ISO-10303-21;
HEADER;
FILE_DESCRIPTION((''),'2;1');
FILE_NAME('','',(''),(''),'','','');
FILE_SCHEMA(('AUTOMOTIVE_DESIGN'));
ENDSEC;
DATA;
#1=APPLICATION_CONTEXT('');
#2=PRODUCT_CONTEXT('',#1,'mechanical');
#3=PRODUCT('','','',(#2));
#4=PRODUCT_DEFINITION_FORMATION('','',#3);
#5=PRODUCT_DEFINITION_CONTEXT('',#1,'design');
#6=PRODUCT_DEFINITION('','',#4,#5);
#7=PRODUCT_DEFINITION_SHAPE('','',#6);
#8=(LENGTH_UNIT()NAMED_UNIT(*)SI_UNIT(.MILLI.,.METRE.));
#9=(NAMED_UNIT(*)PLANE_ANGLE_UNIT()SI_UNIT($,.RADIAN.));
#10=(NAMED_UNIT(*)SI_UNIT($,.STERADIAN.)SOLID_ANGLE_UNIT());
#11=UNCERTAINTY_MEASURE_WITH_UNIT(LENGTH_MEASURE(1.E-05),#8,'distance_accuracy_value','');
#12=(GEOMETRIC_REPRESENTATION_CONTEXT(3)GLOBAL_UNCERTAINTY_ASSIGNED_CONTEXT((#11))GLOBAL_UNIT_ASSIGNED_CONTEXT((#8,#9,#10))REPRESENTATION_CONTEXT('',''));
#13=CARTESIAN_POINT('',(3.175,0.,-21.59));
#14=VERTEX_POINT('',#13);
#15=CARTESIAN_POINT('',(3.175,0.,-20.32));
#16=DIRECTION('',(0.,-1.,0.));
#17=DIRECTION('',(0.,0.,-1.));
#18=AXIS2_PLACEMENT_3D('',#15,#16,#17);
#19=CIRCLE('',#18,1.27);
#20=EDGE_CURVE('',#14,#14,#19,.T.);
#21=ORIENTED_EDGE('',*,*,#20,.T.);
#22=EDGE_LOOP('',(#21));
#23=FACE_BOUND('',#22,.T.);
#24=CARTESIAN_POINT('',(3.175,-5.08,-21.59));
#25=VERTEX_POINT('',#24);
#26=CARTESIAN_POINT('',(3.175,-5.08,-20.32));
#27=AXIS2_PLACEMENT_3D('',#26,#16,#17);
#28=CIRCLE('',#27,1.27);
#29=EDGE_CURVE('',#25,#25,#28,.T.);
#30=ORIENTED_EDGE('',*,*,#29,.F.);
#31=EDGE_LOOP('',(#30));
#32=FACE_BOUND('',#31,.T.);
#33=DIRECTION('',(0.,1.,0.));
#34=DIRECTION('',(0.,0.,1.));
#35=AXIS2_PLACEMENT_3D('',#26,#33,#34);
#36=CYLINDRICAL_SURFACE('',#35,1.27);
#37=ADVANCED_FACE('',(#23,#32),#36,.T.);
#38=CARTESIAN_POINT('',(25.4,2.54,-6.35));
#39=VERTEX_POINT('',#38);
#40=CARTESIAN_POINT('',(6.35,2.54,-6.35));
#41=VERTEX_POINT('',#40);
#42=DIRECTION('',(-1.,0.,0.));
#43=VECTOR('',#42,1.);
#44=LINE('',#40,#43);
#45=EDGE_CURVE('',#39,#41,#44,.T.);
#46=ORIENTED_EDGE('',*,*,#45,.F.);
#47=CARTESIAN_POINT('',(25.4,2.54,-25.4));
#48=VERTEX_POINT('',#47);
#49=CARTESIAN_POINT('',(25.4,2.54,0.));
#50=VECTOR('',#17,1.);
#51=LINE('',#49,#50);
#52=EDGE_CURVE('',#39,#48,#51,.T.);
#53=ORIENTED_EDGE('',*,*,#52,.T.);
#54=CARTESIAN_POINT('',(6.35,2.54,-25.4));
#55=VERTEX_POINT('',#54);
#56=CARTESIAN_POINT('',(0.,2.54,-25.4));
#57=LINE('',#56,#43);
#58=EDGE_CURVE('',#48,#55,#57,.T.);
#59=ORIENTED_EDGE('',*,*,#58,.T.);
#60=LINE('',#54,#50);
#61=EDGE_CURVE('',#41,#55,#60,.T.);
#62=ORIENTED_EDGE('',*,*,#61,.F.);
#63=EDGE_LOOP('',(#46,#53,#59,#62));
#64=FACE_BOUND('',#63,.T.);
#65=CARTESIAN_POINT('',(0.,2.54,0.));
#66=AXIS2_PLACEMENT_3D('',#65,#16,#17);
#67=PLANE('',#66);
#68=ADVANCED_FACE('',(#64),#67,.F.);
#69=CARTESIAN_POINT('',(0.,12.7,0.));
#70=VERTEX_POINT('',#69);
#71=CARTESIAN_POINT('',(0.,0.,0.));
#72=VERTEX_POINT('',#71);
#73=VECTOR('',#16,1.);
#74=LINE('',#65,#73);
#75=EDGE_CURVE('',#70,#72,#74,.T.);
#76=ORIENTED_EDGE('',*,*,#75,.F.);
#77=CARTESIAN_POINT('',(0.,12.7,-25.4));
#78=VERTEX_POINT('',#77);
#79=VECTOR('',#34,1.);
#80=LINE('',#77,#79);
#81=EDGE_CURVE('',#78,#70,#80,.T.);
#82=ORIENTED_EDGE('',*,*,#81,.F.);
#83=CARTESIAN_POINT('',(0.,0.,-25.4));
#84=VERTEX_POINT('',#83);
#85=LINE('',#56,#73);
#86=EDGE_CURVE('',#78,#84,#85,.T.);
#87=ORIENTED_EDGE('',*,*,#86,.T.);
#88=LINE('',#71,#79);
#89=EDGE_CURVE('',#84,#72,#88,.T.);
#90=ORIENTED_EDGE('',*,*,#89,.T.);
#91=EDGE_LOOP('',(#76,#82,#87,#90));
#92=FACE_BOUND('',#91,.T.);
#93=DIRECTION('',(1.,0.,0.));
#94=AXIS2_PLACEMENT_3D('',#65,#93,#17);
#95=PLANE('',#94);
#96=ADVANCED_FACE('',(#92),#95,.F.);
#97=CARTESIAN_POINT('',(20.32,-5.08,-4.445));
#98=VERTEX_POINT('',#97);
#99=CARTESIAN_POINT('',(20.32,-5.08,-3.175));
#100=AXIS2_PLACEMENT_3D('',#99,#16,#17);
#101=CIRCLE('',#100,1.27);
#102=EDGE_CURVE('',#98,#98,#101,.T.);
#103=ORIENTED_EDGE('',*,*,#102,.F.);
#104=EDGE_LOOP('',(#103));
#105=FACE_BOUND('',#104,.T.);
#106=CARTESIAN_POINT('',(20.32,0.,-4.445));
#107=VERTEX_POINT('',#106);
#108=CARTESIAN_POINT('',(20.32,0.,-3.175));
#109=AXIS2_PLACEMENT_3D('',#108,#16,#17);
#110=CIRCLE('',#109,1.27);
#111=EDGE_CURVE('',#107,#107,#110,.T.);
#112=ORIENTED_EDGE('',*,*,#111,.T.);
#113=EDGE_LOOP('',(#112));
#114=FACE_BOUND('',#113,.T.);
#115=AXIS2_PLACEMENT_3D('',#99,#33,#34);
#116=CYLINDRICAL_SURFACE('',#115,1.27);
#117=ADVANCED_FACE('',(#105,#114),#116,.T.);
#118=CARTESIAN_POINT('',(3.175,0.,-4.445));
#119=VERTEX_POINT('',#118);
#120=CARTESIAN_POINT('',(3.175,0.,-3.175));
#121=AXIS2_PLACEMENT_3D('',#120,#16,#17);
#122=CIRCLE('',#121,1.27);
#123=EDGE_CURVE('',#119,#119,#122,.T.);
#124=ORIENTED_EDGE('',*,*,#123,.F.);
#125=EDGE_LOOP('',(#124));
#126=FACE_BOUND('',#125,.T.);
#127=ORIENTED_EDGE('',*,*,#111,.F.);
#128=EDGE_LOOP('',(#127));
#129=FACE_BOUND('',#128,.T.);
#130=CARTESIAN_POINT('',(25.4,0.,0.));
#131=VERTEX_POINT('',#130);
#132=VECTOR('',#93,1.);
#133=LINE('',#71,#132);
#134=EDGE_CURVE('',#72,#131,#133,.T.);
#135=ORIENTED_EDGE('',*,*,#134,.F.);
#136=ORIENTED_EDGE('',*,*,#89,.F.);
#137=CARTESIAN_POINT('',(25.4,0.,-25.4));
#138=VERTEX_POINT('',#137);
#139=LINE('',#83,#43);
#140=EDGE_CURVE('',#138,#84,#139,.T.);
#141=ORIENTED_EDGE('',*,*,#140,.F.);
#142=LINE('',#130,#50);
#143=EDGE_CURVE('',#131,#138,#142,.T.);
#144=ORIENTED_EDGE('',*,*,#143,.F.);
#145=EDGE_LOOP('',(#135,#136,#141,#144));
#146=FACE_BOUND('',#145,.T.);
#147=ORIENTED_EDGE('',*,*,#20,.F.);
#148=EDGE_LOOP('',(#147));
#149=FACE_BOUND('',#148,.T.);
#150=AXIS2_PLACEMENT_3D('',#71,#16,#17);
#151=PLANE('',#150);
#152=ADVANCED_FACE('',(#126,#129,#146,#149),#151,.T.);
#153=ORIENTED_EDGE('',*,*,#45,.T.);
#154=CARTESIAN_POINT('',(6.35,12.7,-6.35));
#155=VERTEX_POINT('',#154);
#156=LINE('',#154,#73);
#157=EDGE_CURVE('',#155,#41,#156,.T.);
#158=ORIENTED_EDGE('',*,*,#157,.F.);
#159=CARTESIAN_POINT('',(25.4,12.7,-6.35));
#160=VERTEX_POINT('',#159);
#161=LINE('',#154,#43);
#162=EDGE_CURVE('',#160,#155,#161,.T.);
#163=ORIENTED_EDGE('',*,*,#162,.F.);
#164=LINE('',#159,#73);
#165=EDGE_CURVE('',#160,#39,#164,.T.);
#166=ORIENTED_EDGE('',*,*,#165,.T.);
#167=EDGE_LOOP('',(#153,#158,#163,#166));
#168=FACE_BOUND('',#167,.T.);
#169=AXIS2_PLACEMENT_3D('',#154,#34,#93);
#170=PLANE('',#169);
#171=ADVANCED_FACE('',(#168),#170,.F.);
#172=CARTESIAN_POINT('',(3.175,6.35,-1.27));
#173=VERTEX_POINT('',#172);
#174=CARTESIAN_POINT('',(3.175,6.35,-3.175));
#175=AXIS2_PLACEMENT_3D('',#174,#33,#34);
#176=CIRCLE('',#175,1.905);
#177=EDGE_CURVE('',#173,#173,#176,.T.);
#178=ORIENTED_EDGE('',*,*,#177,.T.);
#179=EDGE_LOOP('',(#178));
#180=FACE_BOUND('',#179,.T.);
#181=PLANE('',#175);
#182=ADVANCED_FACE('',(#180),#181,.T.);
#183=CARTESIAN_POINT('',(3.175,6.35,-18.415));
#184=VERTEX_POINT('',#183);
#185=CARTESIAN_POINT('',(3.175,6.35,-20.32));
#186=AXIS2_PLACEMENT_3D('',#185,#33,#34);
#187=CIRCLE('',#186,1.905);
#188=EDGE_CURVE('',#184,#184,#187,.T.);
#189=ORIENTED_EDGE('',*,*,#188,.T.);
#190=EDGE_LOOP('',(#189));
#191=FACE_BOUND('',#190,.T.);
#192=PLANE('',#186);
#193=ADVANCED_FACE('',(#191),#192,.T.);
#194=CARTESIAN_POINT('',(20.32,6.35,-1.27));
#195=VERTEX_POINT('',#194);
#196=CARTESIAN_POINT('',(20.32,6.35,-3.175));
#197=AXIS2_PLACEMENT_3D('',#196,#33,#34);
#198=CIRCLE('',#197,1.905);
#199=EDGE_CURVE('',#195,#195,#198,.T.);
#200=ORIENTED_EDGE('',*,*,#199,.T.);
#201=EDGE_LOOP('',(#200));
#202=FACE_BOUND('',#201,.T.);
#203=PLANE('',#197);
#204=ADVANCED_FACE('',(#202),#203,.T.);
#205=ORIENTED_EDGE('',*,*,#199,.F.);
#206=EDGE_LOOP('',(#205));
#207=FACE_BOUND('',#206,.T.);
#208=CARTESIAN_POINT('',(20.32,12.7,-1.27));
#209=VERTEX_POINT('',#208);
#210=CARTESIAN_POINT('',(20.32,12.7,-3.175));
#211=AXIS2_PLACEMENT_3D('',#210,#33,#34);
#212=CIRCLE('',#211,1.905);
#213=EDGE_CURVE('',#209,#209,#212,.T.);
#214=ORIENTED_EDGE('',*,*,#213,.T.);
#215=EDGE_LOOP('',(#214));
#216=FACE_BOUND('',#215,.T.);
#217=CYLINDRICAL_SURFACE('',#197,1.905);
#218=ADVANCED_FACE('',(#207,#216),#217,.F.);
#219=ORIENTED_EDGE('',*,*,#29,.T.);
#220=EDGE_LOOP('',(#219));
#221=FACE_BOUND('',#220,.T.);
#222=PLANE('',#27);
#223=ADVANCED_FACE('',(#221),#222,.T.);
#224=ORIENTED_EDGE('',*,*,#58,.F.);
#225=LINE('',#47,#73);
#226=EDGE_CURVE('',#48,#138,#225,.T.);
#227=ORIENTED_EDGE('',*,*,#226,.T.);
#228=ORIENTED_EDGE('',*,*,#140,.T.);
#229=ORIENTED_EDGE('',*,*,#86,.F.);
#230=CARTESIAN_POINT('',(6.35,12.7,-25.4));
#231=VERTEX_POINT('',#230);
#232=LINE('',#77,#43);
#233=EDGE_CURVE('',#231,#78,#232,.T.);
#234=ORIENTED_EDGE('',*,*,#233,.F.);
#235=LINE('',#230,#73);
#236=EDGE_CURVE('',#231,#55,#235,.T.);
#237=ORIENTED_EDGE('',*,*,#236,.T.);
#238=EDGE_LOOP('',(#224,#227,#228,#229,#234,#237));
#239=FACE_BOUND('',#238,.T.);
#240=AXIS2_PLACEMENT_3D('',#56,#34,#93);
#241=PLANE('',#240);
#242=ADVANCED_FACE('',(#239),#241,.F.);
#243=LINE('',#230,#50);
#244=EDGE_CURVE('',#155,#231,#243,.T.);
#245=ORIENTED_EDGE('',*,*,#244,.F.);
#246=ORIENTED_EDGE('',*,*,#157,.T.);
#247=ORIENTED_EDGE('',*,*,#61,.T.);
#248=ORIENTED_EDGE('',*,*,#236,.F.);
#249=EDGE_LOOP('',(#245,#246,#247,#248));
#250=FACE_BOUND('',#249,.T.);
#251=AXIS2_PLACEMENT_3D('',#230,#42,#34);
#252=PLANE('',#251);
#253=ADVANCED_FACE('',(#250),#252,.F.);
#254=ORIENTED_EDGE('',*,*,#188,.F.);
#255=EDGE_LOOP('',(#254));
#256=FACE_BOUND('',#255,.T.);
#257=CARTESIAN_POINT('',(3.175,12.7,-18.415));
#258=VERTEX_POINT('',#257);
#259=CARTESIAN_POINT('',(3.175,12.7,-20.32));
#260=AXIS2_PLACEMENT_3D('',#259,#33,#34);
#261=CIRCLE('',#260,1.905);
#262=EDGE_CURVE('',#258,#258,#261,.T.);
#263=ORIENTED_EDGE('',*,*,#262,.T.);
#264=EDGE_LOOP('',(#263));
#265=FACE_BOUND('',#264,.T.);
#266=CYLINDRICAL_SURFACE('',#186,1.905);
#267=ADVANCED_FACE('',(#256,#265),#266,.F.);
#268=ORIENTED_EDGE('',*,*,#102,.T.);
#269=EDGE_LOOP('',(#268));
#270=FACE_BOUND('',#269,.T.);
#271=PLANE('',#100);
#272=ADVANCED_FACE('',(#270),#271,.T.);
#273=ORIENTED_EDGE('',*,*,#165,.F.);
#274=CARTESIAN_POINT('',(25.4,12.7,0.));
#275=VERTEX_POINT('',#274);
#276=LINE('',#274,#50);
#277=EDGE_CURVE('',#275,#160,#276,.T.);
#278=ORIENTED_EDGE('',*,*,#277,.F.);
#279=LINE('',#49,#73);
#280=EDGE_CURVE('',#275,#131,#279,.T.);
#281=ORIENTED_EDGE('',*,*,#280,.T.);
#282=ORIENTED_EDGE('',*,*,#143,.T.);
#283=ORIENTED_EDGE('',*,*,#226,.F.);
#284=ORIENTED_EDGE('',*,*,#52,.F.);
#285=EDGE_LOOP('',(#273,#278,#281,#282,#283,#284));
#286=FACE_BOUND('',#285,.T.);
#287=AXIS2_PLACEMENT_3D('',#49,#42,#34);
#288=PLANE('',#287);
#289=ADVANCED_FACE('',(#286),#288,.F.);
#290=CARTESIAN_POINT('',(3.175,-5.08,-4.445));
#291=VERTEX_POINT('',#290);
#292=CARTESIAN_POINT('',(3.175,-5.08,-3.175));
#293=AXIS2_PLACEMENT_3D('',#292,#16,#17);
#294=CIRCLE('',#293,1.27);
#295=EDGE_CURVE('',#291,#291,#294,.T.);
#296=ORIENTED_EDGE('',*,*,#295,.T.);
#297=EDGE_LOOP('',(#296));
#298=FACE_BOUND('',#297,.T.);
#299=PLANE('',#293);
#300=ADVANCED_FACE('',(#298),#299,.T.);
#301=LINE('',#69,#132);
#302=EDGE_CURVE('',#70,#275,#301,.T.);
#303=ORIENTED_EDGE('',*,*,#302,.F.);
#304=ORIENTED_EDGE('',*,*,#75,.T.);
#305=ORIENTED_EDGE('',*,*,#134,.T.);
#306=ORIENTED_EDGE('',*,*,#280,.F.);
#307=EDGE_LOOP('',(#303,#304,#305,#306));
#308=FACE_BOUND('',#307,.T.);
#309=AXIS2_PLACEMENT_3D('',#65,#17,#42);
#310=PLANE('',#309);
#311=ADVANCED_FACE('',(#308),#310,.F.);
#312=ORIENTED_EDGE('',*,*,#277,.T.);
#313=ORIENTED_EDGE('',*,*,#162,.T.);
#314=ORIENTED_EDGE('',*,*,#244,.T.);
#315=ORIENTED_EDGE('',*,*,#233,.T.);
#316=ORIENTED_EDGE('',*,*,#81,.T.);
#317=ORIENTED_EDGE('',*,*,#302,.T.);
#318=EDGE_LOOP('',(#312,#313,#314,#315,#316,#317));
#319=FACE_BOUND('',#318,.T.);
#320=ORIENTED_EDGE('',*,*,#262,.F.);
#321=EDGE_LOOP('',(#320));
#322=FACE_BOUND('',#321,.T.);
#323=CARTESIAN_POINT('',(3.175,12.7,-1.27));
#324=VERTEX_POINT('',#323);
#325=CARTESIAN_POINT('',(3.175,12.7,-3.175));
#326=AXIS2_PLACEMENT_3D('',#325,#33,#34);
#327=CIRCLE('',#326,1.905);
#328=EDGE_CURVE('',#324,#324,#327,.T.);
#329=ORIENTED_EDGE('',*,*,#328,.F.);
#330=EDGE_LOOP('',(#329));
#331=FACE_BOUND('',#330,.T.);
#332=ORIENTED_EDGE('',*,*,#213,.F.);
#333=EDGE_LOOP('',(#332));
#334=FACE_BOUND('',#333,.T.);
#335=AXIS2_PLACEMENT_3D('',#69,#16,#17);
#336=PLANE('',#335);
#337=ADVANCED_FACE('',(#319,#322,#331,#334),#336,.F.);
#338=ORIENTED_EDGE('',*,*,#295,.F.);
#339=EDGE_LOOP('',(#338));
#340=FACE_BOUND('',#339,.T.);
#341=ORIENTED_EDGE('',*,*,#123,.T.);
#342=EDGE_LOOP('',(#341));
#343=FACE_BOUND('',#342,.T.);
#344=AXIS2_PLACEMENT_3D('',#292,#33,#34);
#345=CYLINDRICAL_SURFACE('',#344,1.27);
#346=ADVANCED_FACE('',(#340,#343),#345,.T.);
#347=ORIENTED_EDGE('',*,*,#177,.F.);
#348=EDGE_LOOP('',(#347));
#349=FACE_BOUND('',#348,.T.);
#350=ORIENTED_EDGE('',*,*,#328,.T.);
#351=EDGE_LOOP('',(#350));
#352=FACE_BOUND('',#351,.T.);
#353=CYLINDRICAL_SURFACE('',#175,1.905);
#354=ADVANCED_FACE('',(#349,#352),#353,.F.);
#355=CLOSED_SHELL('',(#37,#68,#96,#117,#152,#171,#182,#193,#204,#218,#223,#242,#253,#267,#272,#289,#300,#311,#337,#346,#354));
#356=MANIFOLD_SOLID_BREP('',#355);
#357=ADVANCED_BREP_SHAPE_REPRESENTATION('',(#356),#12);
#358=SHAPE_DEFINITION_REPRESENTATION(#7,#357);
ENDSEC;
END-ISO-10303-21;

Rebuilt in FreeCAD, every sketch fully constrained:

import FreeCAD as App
import Part
import Sketcher

V = App.Vector
Q = App.Units.Quantity


def add_polygon(sketch, points):
    """Adds a closed chain of lines whose ends are joined by coincident constraints."""
    first, n = sketch.GeometryCount, len(points)
    for a, b in zip(points, points[1:] + points[:1]):
        sketch.addGeometry(Part.LineSegment(App.Vector(*a, 0), App.Vector(*b, 0)), False)
    for i in range(n):
        sketch.addConstraint(Sketcher.Constraint("Coincident", first + i, 2, first + (i + 1) % n, 1))

doc = App.newDocument("Part")
body = doc.addObject("PartDesign::Body", "Body")

sketch1 = body.newObject("Sketcher::SketchObject", "Sketch")
sketch1.AttachmentSupport = (doc.getObject("XZ_Plane"), [""])
sketch1.MapMode = "FlatFace"
add_polygon(sketch1, [(0, -25.4), (0, 0), (25.4, 0), (25.4, -25.4)])
sketch1.addConstraint([
    Sketcher.Constraint("Vertical", 0),
    Sketcher.Constraint("Horizontal", 1),
    Sketcher.Constraint("Vertical", 2),
    Sketcher.Constraint("Horizontal", 3),
    Sketcher.Constraint("Coincident", 0, 2, -1, 1),
    Sketcher.Constraint("Equal", 3, 0),
    Sketcher.Constraint("DistanceX", 1, 1, 1, 2, Q("1 in")),
])
pad1 = body.newObject("PartDesign::Pad", "Pad")
pad1.Profile = sketch1
pad1.Length = Q("0.1 in")
pad1.Reversed = True

sketch2 = body.newObject("Sketcher::SketchObject", "Sketch001")
sketch2.AttachmentSupport = (doc.getObject("XZ_Plane"), [""])
sketch2.MapMode = "FlatFace"
sketch2.AttachmentOffset = App.Placement(V(0, 0, -0.1 * 25.4), App.Rotation())
add_polygon(sketch2, [(0, -25.4), (0, 0), (25.4, 0), (25.4, -6.35), (6.35, -6.35), (6.35, -25.4)])
sketch2.addConstraint([
    Sketcher.Constraint("Vertical", 0),
    Sketcher.Constraint("Horizontal", 1),
    Sketcher.Constraint("Vertical", 2),
    Sketcher.Constraint("Horizontal", 3),
    Sketcher.Constraint("Vertical", 4),
    Sketcher.Constraint("Horizontal", 5),
    Sketcher.Constraint("Coincident", 0, 2, -1, 1),
    Sketcher.Constraint("Equal", 1, 0),
    Sketcher.Constraint("Equal", 5, 2),
    Sketcher.Constraint("DistanceX", 1, 1, 1, 2, Q("1 in")),
    Sketcher.Constraint("DistanceX", 3, 2, 3, 1, Q("0.75 in")),
])
pad2 = body.newObject("PartDesign::Pad", "Pad001")
pad2.Profile = sketch2
pad2.Length = Q("0.4 in")
pad2.Reversed = True

sketch3 = body.newObject("Sketcher::SketchObject", "Sketch002")
sketch3.AttachmentSupport = (doc.getObject("XZ_Plane"), [""])
sketch3.MapMode = "FlatFace"
sketch3.AttachmentOffset = App.Placement(V(0, 0, -0.5 * 25.4), App.Rotation())
sketch3.addGeometry([
    Part.Circle(V(3.175, -20.32, 0), V(0, 0, 1), 1.905),
    Part.Circle(V(3.175, -3.175, 0), V(0, 0, 1), 1.905),
    Part.Circle(V(20.32, -3.175, 0), V(0, 0, 1), 1.905),
], False)
sketch3.addConstraint([
    Sketcher.Constraint("Equal", 0, 1),
    Sketcher.Constraint("Equal", 1, 2),
    Sketcher.Constraint("Horizontal", 1, 3, 2, 3),
    Sketcher.Constraint("Vertical", 0, 3, 1, 3),
    Sketcher.Constraint("Diameter", 0, Q("0.15 in")),
    Sketcher.Constraint("DistanceY", 0, 3, -1, 1, Q("0.8 in")),
    Sketcher.Constraint("DistanceX", -1, 1, 2, 3, Q("0.8 in")),
    Sketcher.Constraint("DistanceX", -1, 1, 0, 3, Q("0.125 in")),
    Sketcher.Constraint("DistanceY", 1, 3, -1, 1, Q("0.125 in")),
])
pocket1 = body.newObject("PartDesign::Pocket", "Pocket")
pocket1.Profile = sketch3
pocket1.Length = Q("0.25 in")
pocket1.Reversed = True

sketch4 = body.newObject("Sketcher::SketchObject", "Sketch003")
sketch4.AttachmentSupport = (doc.getObject("XZ_Plane"), [""])
sketch4.MapMode = "FlatFace"
sketch4.addGeometry([
    Part.Circle(V(3.175, -3.175, 0), V(0, 0, 1), 1.27),
    Part.Circle(V(20.32, -3.175, 0), V(0, 0, 1), 1.27),
    Part.Circle(V(3.175, -20.32, 0), V(0, 0, 1), 1.27),
], False)
sketch4.addConstraint([
    Sketcher.Constraint("Equal", 0, 1),
    Sketcher.Constraint("Equal", 1, 2),
    Sketcher.Constraint("Horizontal", 0, 3, 1, 3),
    Sketcher.Constraint("Vertical", 0, 3, 2, 3),
    Sketcher.Constraint("Diameter", 0, Q("0.1 in")),
    Sketcher.Constraint("DistanceX", -1, 1, 1, 3, Q("0.8 in")),
    Sketcher.Constraint("DistanceY", 2, 3, -1, 1, Q("0.8 in")),
    Sketcher.Constraint("DistanceX", -1, 1, 0, 3, Q("0.125 in")),
    Sketcher.Constraint("DistanceY", 0, 3, -1, 1, Q("0.125 in")),
])
pad3 = body.newObject("PartDesign::Pad", "Pad002")
pad3.Profile = sketch4
pad3.Length = Q("0.2 in")

doc.recompute()
